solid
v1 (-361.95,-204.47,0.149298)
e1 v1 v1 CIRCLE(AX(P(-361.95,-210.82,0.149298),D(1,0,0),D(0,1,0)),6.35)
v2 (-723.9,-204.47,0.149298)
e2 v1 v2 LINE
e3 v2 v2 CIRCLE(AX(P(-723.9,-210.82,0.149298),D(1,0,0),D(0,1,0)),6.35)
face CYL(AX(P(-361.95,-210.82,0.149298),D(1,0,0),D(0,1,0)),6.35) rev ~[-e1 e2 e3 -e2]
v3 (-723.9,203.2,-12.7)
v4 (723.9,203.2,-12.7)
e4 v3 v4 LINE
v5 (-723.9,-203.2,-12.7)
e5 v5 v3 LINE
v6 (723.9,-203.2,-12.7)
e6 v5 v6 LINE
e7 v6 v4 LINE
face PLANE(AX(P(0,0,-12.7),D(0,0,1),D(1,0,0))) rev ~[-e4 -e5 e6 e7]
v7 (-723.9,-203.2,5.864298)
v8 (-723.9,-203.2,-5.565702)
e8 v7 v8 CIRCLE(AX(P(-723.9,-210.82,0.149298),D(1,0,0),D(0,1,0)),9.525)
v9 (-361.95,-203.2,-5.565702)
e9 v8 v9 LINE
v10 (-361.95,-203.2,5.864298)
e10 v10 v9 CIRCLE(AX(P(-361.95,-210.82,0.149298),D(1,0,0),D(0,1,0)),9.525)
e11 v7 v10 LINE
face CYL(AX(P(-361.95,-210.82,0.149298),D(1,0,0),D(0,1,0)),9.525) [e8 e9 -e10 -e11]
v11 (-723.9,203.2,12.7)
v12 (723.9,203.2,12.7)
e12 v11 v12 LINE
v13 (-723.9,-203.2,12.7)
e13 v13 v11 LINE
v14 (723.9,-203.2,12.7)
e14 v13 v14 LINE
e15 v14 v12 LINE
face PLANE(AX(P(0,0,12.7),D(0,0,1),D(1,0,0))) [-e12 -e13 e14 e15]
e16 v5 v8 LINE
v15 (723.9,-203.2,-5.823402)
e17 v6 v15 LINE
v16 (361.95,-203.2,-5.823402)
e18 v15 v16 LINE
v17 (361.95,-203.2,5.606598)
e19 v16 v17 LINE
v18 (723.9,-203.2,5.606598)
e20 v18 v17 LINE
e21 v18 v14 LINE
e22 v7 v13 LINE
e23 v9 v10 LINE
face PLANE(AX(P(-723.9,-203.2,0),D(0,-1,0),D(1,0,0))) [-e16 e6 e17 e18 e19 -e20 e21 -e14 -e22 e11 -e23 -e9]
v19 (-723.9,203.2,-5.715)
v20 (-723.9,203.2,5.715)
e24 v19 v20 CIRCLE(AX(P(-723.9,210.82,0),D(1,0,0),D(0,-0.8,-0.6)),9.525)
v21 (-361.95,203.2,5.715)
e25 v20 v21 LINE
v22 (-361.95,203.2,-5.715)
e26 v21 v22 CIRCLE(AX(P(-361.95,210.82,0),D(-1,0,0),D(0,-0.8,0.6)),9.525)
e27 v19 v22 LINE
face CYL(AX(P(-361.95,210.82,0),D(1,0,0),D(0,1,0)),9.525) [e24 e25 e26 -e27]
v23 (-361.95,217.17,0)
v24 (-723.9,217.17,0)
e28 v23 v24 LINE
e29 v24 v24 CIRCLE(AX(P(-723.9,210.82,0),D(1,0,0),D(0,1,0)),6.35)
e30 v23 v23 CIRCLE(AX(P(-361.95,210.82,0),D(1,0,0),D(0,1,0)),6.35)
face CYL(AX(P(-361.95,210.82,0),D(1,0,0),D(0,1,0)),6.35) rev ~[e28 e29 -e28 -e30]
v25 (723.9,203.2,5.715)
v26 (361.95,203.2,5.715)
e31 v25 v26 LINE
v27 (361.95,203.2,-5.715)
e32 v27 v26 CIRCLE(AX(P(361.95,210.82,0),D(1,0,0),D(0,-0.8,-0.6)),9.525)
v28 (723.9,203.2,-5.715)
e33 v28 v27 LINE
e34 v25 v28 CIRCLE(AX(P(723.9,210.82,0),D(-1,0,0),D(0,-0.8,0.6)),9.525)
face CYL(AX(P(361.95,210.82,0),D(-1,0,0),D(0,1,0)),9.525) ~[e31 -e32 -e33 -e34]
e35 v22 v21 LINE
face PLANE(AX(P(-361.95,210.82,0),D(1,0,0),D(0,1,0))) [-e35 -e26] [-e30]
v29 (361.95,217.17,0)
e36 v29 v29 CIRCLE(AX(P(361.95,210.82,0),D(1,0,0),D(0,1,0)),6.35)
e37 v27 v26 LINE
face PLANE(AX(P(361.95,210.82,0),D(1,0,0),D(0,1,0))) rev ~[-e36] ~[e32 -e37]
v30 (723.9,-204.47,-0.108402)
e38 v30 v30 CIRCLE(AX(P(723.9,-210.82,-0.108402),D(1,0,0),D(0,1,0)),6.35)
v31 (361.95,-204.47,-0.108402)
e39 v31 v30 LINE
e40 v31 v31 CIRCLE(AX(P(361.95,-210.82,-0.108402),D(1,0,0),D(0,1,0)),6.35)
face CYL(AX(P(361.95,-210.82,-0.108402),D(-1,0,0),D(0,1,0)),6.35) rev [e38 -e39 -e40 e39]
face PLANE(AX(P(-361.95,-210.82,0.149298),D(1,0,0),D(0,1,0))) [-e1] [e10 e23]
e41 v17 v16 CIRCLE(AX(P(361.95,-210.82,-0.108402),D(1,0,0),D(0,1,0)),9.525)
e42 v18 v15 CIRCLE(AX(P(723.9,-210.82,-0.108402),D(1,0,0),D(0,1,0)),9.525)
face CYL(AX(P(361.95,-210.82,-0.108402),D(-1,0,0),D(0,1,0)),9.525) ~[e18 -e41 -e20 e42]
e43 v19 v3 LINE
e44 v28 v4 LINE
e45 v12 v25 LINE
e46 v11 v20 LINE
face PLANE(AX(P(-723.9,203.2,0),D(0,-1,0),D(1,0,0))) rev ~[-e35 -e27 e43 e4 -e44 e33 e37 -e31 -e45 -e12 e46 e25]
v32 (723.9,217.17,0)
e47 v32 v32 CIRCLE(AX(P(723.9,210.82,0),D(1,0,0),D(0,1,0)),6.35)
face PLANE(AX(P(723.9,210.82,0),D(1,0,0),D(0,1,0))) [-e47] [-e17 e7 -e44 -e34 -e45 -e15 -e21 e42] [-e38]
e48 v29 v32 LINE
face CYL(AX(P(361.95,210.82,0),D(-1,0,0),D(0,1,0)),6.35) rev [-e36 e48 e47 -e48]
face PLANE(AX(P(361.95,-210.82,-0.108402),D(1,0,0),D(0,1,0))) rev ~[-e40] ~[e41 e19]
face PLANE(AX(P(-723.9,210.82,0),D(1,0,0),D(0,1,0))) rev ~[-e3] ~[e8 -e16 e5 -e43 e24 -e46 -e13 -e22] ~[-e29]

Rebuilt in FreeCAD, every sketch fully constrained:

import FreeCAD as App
import Part
import Sketcher

V = App.Vector
Q = App.Units.Quantity


def add_polygon(sketch, points):
    """Adds a closed chain of lines whose ends are joined by coincident constraints."""
    first, n = sketch.GeometryCount, len(points)
    for a, b in zip(points, points[1:] + points[:1]):
        sketch.addGeometry(Part.LineSegment(App.Vector(*a, 0), App.Vector(*b, 0)), False)
    for i in range(n):
        sketch.addConstraint(Sketcher.Constraint("Coincident", first + i, 2, first + (i + 1) % n, 1))

doc = App.newDocument("Part")
body = doc.addObject("PartDesign::Body", "Body")

# Sketch on XY plane
sketch1 = doc.addObject("Sketcher::SketchObject", "Sketch")
body.addObject(sketch1)
sketch1.AttachmentSupport = (doc.XY_Plane, [""])
sketch1.MapMode = "FlatFace"
add_polygon(sketch1, [(-723.9, 203.2), (-723.9, -203.2), (723.9, -203.2), (723.9, 203.2)])  # lines 0-3
sketch1.addConstraint([
    Sketcher.Constraint("Vertical", 0),
    Sketcher.Constraint("Horizontal", 1),
    Sketcher.Constraint("Vertical", 2),
    Sketcher.Constraint("Horizontal", 3),
    Sketcher.Constraint("Symmetric", 0, 2, 2, 2, -1, 1),
    Sketcher.Constraint("DistanceX", 1, 1, 1, 2, Q("57 in")),
    Sketcher.Constraint("DistanceY", 0, 2, 0, 1, Q("16 in")),
])
pad1 = doc.addObject("PartDesign::Pad", "Pad")
body.addObject(pad1)
pad1.Profile = sketch1
pad1.Length = Q("1 in")
pad1.Midplane = True

# Sketch on YZ plane
sketch2 = doc.addObject("Sketcher::SketchObject", "Sketch001")
body.addObject(sketch2)
sketch2.AttachmentSupport = (doc.YZ_Plane, [""])
sketch2.MapMode = "FlatFace"
sketch2.AttachmentOffset = App.Placement(V(0, 0, -14.25 * 25.4), App.Rotation())
sketch2.addGeometry([
    Part.Circle(V(210.82, 0, 0), V(0, 0, 1), 9.525),
    Part.Circle(V(210.82, 0, 0), V(0, 0, 1), 6.35),
], False)
sketch2.addConstraint([
    Sketcher.Constraint("Coincident", 1, 3, 0, 3),
    Sketcher.Constraint("PointOnObject", 0, 3, -1),
    Sketcher.Constraint("Diameter", 1, Q("0.5 in")),
    Sketcher.Constraint("Diameter", 0, Q("0.75 in")),
    Sketcher.Constraint("DistanceX", -1, 1, 0, 3, Q("8.3 in")),
])
pad2 = doc.addObject("PartDesign::Pad", "Pad001")
body.addObject(pad2)
pad2.Profile = sketch2
pad2.Length = Q("14.25 in")
pad2.Reversed = True

# Sketch on YZ plane
sketch3 = doc.addObject("Sketcher::SketchObject", "Sketch002")
body.addObject(sketch3)
sketch3.AttachmentSupport = (doc.YZ_Plane, [""])
sketch3.MapMode = "FlatFace"
sketch3.AttachmentOffset = App.Placement(V(0, 0, 14.25 * 25.4), App.Rotation())
sketch3.addGeometry([
    Part.Circle(V(210.82, 0, 0), V(0, 0, 1), 9.525),
    Part.Circle(V(210.82, 0, 0), V(0, 0, 1), 6.35),
], False)
sketch3.addConstraint([
    Sketcher.Constraint("Coincident", 1, 3, 0, 3),
    Sketcher.Constraint("PointOnObject", 0, 3, -1),
    Sketcher.Constraint("Diameter", 1, Q("0.5 in")),
    Sketcher.Constraint("Diameter", 0, Q("0.75 in")),
    Sketcher.Constraint("DistanceX", -1, 1, 0, 3, Q("8.3 in")),
])
pad3 = doc.addObject("PartDesign::Pad", "Pad002")
body.addObject(pad3)
pad3.Profile = sketch3
pad3.Length = Q("14.25 in")

# Sketch on YZ plane
sketch4 = doc.addObject("Sketcher::SketchObject", "Sketch003")
body.addObject(sketch4)
sketch4.AttachmentSupport = (doc.YZ_Plane, [""])
sketch4.MapMode = "FlatFace"
sketch4.AttachmentOffset = App.Placement(V(0, 0, -14.25 * 25.4), App.Rotation())
sketch4.addGeometry([
    Part.Circle(V(-210.82, 0.149298, 0), V(0, 0, 1), 9.525),
    Part.Circle(V(-210.82, 0.149298, 0), V(0, 0, 1), 6.35),
], False)
sketch4.addConstraint([
    Sketcher.Constraint("Coincident", 1, 3, 0, 3),
    Sketcher.Constraint("Diameter", 1, Q("0.5 in")),
    Sketcher.Constraint("Diameter", 0, Q("0.75 in")),
    Sketcher.Constraint("DistanceX", 0, 3, -1, 1, Q("8.3 in")),
    Sketcher.Constraint("DistanceY", -1, 1, 0, 3, Q("0.149298 mm")),
])
pad4 = doc.addObject("PartDesign::Pad", "Pad003")
body.addObject(pad4)
pad4.Profile = sketch4
pad4.Length = Q("14.25 in")
pad4.Reversed = True

# Sketch on YZ plane
sketch5 = doc.addObject("Sketcher::SketchObject", "Sketch004")
body.addObject(sketch5)
sketch5.AttachmentSupport = (doc.YZ_Plane, [""])
sketch5.MapMode = "FlatFace"
sketch5.AttachmentOffset = App.Placement(V(0, 0, 14.25 * 25.4), App.Rotation())
sketch5.addGeometry([
    Part.Circle(V(-210.82, -0.108402, 0), V(0, 0, 1), 9.525),
    Part.Circle(V(-210.82, -0.108402, 0), V(0, 0, 1), 6.35),
], False)
sketch5.addConstraint([
    Sketcher.Constraint("Coincident", 1, 3, 0, 3),
    Sketcher.Constraint("Diameter", 1, Q("0.5 in")),
    Sketcher.Constraint("Diameter", 0, Q("0.75 in")),
    Sketcher.Constraint("DistanceX", 0, 3, -1, 1, Q("8.3 in")),
    Sketcher.Constraint("DistanceY", 0, 3, -1, 1, Q("0.108402 mm")),
])
pad5 = doc.addObject("PartDesign::Pad", "Pad004")
body.addObject(pad5)
pad5.Profile = sketch5
pad5.Length = Q("14.25 in")

doc.recompute()
